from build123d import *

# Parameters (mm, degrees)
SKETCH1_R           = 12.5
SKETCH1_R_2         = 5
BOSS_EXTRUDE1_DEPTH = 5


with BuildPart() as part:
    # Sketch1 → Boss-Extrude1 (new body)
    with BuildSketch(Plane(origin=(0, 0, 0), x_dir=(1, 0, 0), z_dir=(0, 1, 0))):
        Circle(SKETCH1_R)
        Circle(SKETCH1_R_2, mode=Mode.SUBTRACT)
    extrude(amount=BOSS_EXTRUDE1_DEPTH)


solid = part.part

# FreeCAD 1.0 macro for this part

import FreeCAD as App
import Part
import Sketcher

V = App.Vector
Q = App.Units.Quantity

doc = App.newDocument("Part")
params = doc.addObject("Spreadsheet::Sheet", "Params")
for row, (alias, value) in enumerate([
    ("sketch1_diameter", "25 mm"),
    ("sketch1_diameter2", "10 mm"),
    ("pad1_length", "5 mm"),
], start=1):
    params.set(f"A{row}", alias)
    params.set(f"B{row}", "=" + value)
    params.setAlias(f"B{row}", alias)

body = doc.addObject("PartDesign::Body", "Body")

# Sketch on XZ plane
sketch1 = body.newObject("Sketcher::SketchObject", "Sketch")
sketch1.AttachmentSupport = (doc.getObject("XZ_Plane"), [""])
sketch1.MapMode = "FlatFace"
sketch1.addGeometry(Part.Circle(V(0, 0, 0), V(0, 0, 1), 12.5), False)
sketch1.addGeometry(Part.Circle(V(0, 0, 0), V(0, 0, 1), 5), False)
sketch1.addConstraint(Sketcher.Constraint("Coincident", 0, 3, -1, 1))
sketch1.addConstraint(Sketcher.Constraint("Coincident", 1, 3, -1, 1))
sketch1.addConstraint(Sketcher.Constraint("Diameter", 0, Q("25 mm")))
sketch1.addConstraint(Sketcher.Constraint("Diameter", 1, Q("10 mm")))
sketch1.setExpression("Constraints[2]", "Params.sketch1_diameter")
sketch1.setExpression("Constraints[3]", "Params.sketch1_diameter2")
pad1 = body.newObject("PartDesign::Pad", "Pad")
pad1.Profile = sketch1
pad1.setExpression("Length", "Params.pad1_length")
pad1.Reversed = True

doc.recompute()
